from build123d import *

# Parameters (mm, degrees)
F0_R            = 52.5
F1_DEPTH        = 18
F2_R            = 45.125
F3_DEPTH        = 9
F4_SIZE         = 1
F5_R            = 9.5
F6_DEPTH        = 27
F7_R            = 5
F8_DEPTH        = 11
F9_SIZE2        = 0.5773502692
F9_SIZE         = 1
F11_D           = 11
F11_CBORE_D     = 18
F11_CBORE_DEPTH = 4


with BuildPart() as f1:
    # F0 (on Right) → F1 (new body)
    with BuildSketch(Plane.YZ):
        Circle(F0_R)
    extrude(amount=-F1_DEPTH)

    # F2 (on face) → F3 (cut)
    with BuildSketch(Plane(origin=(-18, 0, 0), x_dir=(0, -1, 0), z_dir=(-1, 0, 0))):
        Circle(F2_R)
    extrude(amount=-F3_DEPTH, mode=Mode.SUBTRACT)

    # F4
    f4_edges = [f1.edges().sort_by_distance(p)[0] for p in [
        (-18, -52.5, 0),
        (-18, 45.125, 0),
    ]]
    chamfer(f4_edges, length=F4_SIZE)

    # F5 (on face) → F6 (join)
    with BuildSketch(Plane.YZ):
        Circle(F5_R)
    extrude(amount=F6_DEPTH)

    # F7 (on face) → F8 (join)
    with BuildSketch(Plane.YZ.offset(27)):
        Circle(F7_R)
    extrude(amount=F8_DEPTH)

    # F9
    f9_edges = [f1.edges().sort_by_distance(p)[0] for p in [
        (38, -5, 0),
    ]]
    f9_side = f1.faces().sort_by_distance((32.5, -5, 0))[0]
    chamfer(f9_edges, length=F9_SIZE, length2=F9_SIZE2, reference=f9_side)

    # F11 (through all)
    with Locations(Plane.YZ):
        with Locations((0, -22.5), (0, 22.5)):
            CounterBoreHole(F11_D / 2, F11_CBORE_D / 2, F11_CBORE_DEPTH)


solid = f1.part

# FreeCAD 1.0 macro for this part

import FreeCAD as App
import Part
import Sketcher
from FreeCAD import Vector


def edges_at(feature, points):
    """Names of the edges that pass closest to the given points."""
    edges = feature.Shape.Edges
    near = lambda p: min(range(len(edges)), key=lambda i: edges[i].distToShape(Part.Vertex(*p))[0])
    return sorted({f"Edge{near(p) + 1}" for p in points})

doc = App.newDocument("Part")
params = doc.addObject("Spreadsheet::Sheet", "Params")
for row, (alias, value) in enumerate([
    ("sketch1_diameter", "105 mm"),
    ("pad1_length", "18 mm"),
    ("sketch2_diameter", "90.25 mm"),
    ("pocket1_length", "9 mm"),
    ("chamfer_size", "1 mm"),
    ("sketch3_diameter", "19 mm"),
    ("pad2_length", "27 mm"),
    ("sketch4_diameter", "10 mm"),
    ("pad3_length", "11 mm"),
    ("chamfer2_size", "1 mm"),
    ("chamfer2_size2", "0.57735 mm"),
    ("sketch5_diameter", "11 mm"),
    ("hole_diameter", "11 mm"),
    ("hole_cbore_diameter", "18 mm"),
    ("hole_cbore_depth", "4 mm"),
], start=1):
    params.set(f"A{row}", alias)
    params.set(f"B{row}", "=" + value)
    params.setAlias(f"B{row}", alias)

body = doc.addObject("PartDesign::Body", "Body")

# Sketch on YZ plane
sketch1 = body.newObject("Sketcher::SketchObject", "Sketch")
sketch1.AttachmentSupport = (doc.getObject("YZ_Plane"), [""])
sketch1.MapMode = "FlatFace"
sketch1.addGeometry(Part.Circle(Vector(0, 0, 0), Vector(0, 0, 1), 52.5), False)
sketch1.addConstraint([
    Sketcher.Constraint("Coincident", 0, 3, -1, 1),
    Sketcher.Constraint("Diameter", 0, 105.0),
])
sketch1.setExpression("Constraints[1]", "Params.sketch1_diameter")
pad1 = body.newObject("PartDesign::Pad", "Pad")
pad1.Profile = sketch1
pad1.setExpression("Length", "Params.pad1_length")
pad1.Reversed = True

# Sketch on YZ plane
sketch2 = body.newObject("Sketcher::SketchObject", "Sketch001")
sketch2.AttachmentSupport = (doc.getObject("YZ_Plane"), [""])
sketch2.MapMode = "FlatFace"
sketch2.AttachmentOffset = App.Placement(Vector(0, 0, -18), App.Rotation())
sketch2.addGeometry(Part.Circle(Vector(0, 0, 0), Vector(0, 0, 1), 45.125), False)
sketch2.addConstraint([
    Sketcher.Constraint("Coincident", 0, 3, -1, 1),
    Sketcher.Constraint("Diameter", 0, 90.25),
])
sketch2.setExpression("Constraints[1]", "Params.sketch2_diameter")
pocket1 = body.newObject("PartDesign::Pocket", "Pocket")
pocket1.Profile = sketch2
pocket1.setExpression("Length", "Params.pocket1_length")
pocket1.Reversed = True
doc.recompute()

chamfer = body.newObject("PartDesign::Chamfer", "Chamfer")
chamfer.Base = (pocket1, edges_at(pocket1, [(-18, -52.5, 0), (-18, 45.125, 0)]))
chamfer.setExpression("Size", "Params.chamfer_size")

# Sketch on YZ plane
sketch3 = body.newObject("Sketcher::SketchObject", "Sketch002")
sketch3.AttachmentSupport = (doc.getObject("YZ_Plane"), [""])
sketch3.MapMode = "FlatFace"
sketch3.addGeometry(Part.Circle(Vector(0, 0, 0), Vector(0, 0, 1), 9.5), False)
sketch3.addConstraint([
    Sketcher.Constraint("Coincident", 0, 3, -1, 1),
    Sketcher.Constraint("Diameter", 0, 19.0),
])
sketch3.setExpression("Constraints[1]", "Params.sketch3_diameter")
pad2 = body.newObject("PartDesign::Pad", "Pad001")
pad2.Profile = sketch3
pad2.setExpression("Length", "Params.pad2_length")

# Sketch on YZ plane
sketch4 = body.newObject("Sketcher::SketchObject", "Sketch003")
sketch4.AttachmentSupport = (doc.getObject("YZ_Plane"), [""])
sketch4.MapMode = "FlatFace"
sketch4.AttachmentOffset = App.Placement(Vector(0, 0, 27), App.Rotation())
sketch4.addGeometry(Part.Circle(Vector(0, 0, 0), Vector(0, 0, 1), 5), False)
sketch4.addConstraint([
    Sketcher.Constraint("Coincident", 0, 3, -1, 1),
    Sketcher.Constraint("Diameter", 0, 10.0),
])
sketch4.setExpression("Constraints[1]", "Params.sketch4_diameter")
pad3 = body.newObject("PartDesign::Pad", "Pad002")
pad3.Profile = sketch4
pad3.setExpression("Length", "Params.pad3_length")
doc.recompute()

chamfer2 = body.newObject("PartDesign::Chamfer", "Chamfer001")
chamfer2.Base = (pad3, edges_at(pad3, [(38, -5, 0)]))
chamfer2.ChamferType = "Two distances"
chamfer2.setExpression("Size", "Params.chamfer2_size")
chamfer2.setExpression("Size2", "Params.chamfer2_size2")

# Sketch on YZ plane
sketch5 = body.newObject("Sketcher::SketchObject", "Sketch004")
sketch5.AttachmentSupport = (doc.getObject("YZ_Plane"), [""])
sketch5.MapMode = "FlatFace"
sketch5.addGeometry([
    Part.Circle(Vector(0, -22.5, 0), Vector(0, 0, 1), 5.5),
    Part.Circle(Vector(0, 22.5, 0), Vector(0, 0, 1), 5.5),
], False)
sketch5.addConstraint([
    Sketcher.Constraint("Equal", 0, 1),
    Sketcher.Constraint("Symmetric", 0, 3, 1, 3, -1, 1),
    Sketcher.Constraint("PointOnObject", 0, 3, -2),
    Sketcher.Constraint("Diameter", 0, 11.0),
    Sketcher.Constraint("DistanceY", 0, 3, 1, 3, 45.0),
])
sketch5.setExpression("Constraints[3]", "Params.sketch5_diameter")
doc.recompute()
hole = body.newObject("PartDesign::Hole", "Hole")
hole.Profile = sketch5
hole.ThreadType = "None"
hole.setExpression("Diameter", "Params.hole_diameter")
hole.DepthType = "ThroughAll"
hole.HoleCutType = "Counterbore"
hole.setExpression("HoleCutDiameter", "Params.hole_cbore_diameter")
hole.setExpression("HoleCutDepth", "Params.hole_cbore_depth")

doc.recompute()
